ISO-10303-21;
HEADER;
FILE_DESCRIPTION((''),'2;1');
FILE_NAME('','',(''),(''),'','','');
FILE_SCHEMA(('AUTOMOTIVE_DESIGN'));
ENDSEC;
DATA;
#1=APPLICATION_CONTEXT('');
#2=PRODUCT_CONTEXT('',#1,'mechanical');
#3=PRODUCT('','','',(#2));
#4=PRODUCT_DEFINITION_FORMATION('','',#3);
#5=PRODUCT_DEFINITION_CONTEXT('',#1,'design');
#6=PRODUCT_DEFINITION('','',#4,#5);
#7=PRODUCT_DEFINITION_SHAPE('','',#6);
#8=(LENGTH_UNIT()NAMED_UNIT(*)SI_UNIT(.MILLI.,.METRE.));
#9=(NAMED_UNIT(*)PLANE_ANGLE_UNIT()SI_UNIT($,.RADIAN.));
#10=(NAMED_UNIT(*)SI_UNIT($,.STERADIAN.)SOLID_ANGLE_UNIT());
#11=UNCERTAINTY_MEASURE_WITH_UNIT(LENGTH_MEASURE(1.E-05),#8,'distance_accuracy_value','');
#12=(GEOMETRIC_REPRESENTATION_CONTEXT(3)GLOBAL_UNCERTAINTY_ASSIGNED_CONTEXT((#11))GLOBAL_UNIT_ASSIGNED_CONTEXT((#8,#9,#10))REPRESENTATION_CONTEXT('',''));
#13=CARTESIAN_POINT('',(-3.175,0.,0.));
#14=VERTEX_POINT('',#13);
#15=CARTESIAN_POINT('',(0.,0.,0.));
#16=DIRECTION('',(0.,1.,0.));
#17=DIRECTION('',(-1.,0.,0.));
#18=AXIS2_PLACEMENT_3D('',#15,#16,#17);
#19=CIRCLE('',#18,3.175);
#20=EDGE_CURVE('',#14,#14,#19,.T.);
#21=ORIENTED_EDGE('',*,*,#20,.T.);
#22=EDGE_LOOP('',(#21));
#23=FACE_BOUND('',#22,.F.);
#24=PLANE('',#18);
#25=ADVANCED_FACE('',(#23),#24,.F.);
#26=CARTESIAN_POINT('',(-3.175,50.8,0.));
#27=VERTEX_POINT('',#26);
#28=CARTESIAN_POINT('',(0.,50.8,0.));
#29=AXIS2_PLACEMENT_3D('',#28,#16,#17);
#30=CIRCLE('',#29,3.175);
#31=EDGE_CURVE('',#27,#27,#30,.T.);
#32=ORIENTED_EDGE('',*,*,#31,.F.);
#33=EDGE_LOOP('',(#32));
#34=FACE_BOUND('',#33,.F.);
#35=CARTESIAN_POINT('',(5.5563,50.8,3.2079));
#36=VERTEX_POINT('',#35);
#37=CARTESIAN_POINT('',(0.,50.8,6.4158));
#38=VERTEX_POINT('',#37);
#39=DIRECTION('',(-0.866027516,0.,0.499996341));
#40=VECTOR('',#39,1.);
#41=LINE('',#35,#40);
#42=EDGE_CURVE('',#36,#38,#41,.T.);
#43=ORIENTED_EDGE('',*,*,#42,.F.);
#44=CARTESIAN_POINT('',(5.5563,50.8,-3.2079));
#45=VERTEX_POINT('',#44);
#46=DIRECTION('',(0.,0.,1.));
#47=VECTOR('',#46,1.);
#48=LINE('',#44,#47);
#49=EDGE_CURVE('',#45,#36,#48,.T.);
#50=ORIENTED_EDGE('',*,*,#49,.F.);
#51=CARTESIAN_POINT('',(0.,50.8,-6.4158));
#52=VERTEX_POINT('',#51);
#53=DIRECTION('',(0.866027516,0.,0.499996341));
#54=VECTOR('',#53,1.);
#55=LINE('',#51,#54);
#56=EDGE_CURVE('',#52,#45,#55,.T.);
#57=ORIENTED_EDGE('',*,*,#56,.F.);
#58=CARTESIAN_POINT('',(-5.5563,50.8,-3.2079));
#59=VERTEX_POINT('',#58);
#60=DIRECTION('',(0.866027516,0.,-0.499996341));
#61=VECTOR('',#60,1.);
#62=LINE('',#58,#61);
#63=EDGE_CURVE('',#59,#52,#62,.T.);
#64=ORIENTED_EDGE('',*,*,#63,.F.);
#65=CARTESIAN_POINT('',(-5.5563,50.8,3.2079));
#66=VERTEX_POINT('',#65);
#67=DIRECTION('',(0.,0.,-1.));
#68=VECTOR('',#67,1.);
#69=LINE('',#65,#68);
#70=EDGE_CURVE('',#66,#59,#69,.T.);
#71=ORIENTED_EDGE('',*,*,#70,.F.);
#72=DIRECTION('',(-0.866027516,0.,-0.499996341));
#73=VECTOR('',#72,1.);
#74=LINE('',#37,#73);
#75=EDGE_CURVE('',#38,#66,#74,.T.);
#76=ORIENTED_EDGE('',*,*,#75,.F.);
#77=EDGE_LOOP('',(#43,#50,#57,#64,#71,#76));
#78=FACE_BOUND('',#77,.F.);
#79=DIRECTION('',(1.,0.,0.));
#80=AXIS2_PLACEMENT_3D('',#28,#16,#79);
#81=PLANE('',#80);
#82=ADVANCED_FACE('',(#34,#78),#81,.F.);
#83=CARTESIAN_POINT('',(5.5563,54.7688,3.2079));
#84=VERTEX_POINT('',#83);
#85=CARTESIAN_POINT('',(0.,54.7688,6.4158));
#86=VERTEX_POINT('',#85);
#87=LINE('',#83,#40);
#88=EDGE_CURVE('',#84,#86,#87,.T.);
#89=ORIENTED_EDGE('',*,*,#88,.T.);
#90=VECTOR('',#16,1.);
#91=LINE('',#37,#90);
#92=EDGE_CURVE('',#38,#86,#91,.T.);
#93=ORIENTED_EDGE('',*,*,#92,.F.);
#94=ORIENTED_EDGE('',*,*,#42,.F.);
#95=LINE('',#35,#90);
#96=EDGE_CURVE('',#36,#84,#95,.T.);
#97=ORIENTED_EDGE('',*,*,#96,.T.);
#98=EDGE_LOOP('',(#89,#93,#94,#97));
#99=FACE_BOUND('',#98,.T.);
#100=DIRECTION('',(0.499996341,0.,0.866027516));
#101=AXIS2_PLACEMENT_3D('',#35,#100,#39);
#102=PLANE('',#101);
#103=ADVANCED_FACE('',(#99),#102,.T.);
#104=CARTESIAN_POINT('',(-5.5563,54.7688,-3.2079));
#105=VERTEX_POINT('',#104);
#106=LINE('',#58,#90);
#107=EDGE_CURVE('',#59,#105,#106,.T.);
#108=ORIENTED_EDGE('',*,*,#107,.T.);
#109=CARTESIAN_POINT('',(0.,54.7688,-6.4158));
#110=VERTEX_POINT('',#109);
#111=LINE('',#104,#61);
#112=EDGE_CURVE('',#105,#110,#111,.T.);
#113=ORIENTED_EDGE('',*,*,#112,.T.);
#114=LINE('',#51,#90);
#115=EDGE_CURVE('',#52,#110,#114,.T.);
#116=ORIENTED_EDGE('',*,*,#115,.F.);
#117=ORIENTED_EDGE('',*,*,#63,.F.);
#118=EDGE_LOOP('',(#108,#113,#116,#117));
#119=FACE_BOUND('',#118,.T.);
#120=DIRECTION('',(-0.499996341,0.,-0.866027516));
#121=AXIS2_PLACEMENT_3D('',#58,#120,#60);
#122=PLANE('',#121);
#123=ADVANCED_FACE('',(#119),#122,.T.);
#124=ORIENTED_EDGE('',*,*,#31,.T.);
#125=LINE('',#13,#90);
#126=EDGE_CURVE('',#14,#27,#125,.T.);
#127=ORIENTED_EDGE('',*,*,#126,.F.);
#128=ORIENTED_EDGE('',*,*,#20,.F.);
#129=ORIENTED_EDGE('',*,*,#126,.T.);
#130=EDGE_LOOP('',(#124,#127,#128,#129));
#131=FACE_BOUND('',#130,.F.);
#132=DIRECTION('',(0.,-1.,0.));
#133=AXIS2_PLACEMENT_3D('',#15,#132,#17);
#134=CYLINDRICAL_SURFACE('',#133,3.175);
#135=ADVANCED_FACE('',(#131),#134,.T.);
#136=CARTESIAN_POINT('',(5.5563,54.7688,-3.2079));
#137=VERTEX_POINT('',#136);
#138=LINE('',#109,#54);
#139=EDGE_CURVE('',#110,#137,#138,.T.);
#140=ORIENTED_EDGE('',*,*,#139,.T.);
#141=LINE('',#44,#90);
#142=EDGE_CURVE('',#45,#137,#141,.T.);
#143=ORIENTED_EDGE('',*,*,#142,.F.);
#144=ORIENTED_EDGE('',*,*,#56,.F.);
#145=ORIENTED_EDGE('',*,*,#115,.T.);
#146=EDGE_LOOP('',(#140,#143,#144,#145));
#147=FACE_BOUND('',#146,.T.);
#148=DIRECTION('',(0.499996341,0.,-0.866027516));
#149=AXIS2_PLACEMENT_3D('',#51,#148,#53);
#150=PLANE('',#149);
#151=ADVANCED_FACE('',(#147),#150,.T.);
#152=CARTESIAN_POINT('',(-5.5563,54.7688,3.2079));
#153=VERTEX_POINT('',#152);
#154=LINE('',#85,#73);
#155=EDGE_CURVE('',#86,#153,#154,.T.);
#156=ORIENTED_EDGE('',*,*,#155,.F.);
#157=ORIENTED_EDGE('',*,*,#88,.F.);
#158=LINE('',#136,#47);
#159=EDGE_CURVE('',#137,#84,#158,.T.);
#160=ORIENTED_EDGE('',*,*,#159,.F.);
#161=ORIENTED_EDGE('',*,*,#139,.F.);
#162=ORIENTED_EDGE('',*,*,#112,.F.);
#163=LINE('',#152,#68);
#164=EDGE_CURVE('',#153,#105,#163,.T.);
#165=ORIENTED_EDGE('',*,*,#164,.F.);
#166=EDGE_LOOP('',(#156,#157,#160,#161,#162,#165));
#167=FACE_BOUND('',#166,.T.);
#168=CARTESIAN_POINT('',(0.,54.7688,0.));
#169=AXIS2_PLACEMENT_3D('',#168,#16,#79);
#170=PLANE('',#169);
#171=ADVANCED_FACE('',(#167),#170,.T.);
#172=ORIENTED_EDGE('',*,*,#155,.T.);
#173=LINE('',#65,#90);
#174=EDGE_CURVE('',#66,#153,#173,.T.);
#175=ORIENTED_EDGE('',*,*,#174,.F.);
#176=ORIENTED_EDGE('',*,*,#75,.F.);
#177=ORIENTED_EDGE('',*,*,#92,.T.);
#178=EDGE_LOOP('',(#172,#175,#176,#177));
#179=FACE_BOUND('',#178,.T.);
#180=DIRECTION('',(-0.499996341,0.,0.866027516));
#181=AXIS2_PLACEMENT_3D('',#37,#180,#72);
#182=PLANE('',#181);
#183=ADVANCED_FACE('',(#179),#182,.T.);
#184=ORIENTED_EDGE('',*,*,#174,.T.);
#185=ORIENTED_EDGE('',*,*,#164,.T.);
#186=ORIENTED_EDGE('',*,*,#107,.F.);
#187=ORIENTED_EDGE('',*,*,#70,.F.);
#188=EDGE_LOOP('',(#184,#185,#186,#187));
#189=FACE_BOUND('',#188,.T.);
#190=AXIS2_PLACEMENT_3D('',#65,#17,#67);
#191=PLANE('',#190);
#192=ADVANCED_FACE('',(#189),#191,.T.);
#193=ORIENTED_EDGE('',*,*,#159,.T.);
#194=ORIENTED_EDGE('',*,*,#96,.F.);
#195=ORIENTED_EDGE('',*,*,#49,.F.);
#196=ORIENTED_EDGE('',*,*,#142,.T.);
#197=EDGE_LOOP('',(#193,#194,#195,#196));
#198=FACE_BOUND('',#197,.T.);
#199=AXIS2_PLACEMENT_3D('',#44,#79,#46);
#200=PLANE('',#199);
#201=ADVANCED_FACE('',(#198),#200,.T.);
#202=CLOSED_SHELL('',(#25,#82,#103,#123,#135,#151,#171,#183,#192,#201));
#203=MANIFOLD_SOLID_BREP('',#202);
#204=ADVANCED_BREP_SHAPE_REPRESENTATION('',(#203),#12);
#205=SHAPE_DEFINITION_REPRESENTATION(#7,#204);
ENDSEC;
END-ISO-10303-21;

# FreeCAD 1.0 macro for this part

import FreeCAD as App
import Part
import Sketcher
Q = App.Units.Quantity

doc = App.newDocument("Part")
body = doc.addObject("PartDesign::Body", "Body")

# Sketch on XZ plane
sketch1 = body.newObject("Sketcher::SketchObject", "Sketch")
sketch1.AttachmentSupport = (doc.getObject("XZ_Plane"), [""])
sketch1.MapMode = "FlatFace"
sketch1.addGeometry(Part.Circle(App.Vector(0, 0, 0), App.Vector(0, 0, 1), 3.175), False)
sketch1.addConstraint(Sketcher.Constraint("Coincident", 0, 3, -1, 1))
sketch1.addConstraint(Sketcher.Constraint("Diameter", 0, Q("0.25 in")))
pad1 = body.newObject("PartDesign::Pad", "Pad")
pad1.Profile = sketch1
pad1.Length = Q("2 in")
pad1.Reversed = True

# Sketch on XZ plane
sketch2 = body.newObject("Sketcher::SketchObject", "Sketch001")
sketch2.AttachmentSupport = (doc.getObject("XZ_Plane"), [""])
sketch2.MapMode = "FlatFace"
sketch2.AttachmentOffset = App.Placement(App.Vector(0, 0, -2 * 25.4), App.Rotation())
sketch2.addGeometry(Part.LineSegment(App.Vector(-5.5563, -3.2079, 0), App.Vector(-5.5563, 3.2079, 0)), False)
sketch2.addGeometry(Part.LineSegment(App.Vector(-5.5563, 3.2079, 0), App.Vector(0, 6.4158, 0)), False)
sketch2.addGeometry(Part.LineSegment(App.Vector(0, 6.4158, 0), App.Vector(5.5563, 3.2079, 0)), False)
sketch2.addGeometry(Part.LineSegment(App.Vector(5.5563, 3.2079, 0), App.Vector(5.5563, -3.2079, 0)), False)
sketch2.addGeometry(Part.LineSegment(App.Vector(5.5563, -3.2079, 0), App.Vector(0, -6.4158, 0)), False)
sketch2.addGeometry(Part.LineSegment(App.Vector(0, -6.4158, 0), App.Vector(-5.5563, -3.2079, 0)), False)
sketch2.addConstraint(Sketcher.Constraint("Coincident", 0, 2, 1, 1))
sketch2.addConstraint(Sketcher.Constraint("Coincident", 1, 2, 2, 1))
sketch2.addConstraint(Sketcher.Constraint("Coincident", 2, 2, 3, 1))
sketch2.addConstraint(Sketcher.Constraint("Coincident", 3, 2, 4, 1))
sketch2.addConstraint(Sketcher.Constraint("Coincident", 4, 2, 5, 1))
sketch2.addConstraint(Sketcher.Constraint("Coincident", 5, 2, 0, 1))
sketch2.addConstraint(Sketcher.Constraint("Vertical", 0))
sketch2.addConstraint(Sketcher.Constraint("Vertical", 3))
sketch2.addConstraint(Sketcher.Constraint("Symmetric", 0, 2, 3, 2, -1, 1))
sketch2.addConstraint(Sketcher.Constraint("Symmetric", 1, 2, 4, 2, -1, 1))
sketch2.addConstraint(Sketcher.Constraint("PointOnObject", 1, 2, -2))
sketch2.addConstraint(Sketcher.Constraint("Parallel", 2, 5))
sketch2.addConstraint(Sketcher.Constraint("Horizontal", 0, 2, 2, 2))
sketch2.addConstraint(Sketcher.Constraint("DistanceX", 0, 2, -1, 1, Q("0.218752 in")))
sketch2.addConstraint(Sketcher.Constraint("Angle", 1, Q("29.9998 deg")))
sketch2.addConstraint(Sketcher.Constraint("DistanceY", 0, 1, 0, 2, Q("0.2526 in")))
pad2 = body.newObject("PartDesign::Pad", "Pad001")
pad2.Profile = sketch2
pad2.Length = Q("0.156252 in")
pad2.Reversed = True

doc.recompute()
